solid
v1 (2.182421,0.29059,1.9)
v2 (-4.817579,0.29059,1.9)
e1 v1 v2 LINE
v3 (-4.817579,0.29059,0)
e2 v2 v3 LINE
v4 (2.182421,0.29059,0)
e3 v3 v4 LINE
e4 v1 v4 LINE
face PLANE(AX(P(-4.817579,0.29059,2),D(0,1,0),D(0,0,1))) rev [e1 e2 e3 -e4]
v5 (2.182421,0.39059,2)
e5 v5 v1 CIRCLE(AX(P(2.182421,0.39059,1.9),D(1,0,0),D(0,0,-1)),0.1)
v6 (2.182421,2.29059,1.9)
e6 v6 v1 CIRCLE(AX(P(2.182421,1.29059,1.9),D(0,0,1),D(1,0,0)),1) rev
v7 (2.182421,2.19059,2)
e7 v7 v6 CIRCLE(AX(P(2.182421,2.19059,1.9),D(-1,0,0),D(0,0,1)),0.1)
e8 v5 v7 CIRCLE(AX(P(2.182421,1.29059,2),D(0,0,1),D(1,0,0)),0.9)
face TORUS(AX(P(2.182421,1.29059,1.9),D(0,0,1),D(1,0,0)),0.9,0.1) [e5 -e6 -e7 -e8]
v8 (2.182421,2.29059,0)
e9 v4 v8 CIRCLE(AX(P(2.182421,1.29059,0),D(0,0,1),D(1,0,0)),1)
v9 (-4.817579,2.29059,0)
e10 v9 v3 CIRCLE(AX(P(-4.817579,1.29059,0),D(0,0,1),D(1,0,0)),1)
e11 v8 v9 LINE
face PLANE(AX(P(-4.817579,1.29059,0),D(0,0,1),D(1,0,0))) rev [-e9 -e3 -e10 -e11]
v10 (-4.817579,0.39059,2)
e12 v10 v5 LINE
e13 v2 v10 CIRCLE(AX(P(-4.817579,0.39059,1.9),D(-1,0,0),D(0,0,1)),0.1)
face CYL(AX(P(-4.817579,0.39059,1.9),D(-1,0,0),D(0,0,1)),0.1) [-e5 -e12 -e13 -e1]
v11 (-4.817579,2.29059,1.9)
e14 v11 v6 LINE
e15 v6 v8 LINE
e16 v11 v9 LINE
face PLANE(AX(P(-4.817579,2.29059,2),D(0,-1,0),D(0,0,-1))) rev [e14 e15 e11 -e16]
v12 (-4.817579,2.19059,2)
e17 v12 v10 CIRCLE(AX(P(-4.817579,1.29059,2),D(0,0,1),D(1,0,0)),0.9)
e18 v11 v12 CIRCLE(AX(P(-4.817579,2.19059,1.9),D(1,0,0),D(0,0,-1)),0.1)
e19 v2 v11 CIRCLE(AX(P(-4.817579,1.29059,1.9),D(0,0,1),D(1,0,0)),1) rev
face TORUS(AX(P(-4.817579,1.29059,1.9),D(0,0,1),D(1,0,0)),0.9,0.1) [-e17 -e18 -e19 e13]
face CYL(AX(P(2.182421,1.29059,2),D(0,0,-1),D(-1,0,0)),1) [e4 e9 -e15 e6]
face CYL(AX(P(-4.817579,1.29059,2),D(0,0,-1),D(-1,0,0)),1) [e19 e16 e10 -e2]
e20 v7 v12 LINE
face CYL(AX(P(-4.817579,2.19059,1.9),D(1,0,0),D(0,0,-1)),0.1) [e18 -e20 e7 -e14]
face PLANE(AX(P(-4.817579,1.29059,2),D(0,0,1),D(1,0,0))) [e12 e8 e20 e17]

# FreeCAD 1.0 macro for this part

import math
import FreeCAD as App
import Part
import Sketcher
from FreeCAD import Vector


def edges_at(feature, points):
    """Names of the edges that pass closest to the given points."""
    edges = feature.Shape.Edges
    near = lambda p: min(range(len(edges)), key=lambda i: edges[i].distToShape(Part.Vertex(*p))[0])
    return sorted({f"Edge{near(p) + 1}" for p in points})

doc = App.newDocument("Part")
body = doc.addObject("PartDesign::Body", "Body")

# Sketch on XY plane
sketch1 = doc.addObject("Sketcher::SketchObject", "Sketch")
body.addObject(sketch1)
sketch1.AttachmentSupport = (doc.XY_Plane, [""])
sketch1.MapMode = "FlatFace"
sketch1.addGeometry([
    Part.LineSegment(Vector(2.182421, 2.29059, 0), Vector(-4.817579, 2.29059, 0)),
    Part.ArcOfCircle(Part.Circle(Vector(-4.817579, 1.29059, 0), Vector(0, 0, 1), 1), math.radians(90), math.radians(270)),
    Part.LineSegment(Vector(-4.817579, 0.29059, 0), Vector(2.182421, 0.29059, 0)),
    Part.ArcOfCircle(Part.Circle(Vector(2.182421, 1.29059, 0), Vector(0, 0, 1), 1), math.radians(-90), math.radians(90)),
], False)
sketch1.addConstraint([
    Sketcher.Constraint("Tangent", 0, 2, 1, 1),
    Sketcher.Constraint("Tangent", 1, 2, 2, 1),
    Sketcher.Constraint("Tangent", 2, 2, 3, 1),
    Sketcher.Constraint("Tangent", 3, 2, 0, 1),
    Sketcher.Constraint("Horizontal", 0),
    Sketcher.Constraint("Horizontal", 2),
    Sketcher.Constraint("Radius", 1, 1.0),
    Sketcher.Constraint("DistanceX", 0, 2, 0, 1, 7.0),
    Sketcher.Constraint("DistanceX", 1, 3, -1, 1, 4.817579),
    Sketcher.Constraint("DistanceY", -1, 1, 1, 3, 1.29059),
])
pad1 = doc.addObject("PartDesign::Pad", "Pad")
body.addObject(pad1)
pad1.Profile = sketch1
pad1.Length = 2
doc.recompute()

fillet = doc.addObject("PartDesign::Fillet", "Fillet")
body.addObject(fillet)
fillet.Base = (pad1, edges_at(pad1, [
    (3.182, 1.291, 2),
    (-1.318, 2.291, 2),
    (-5.818, 1.291, 2),
    (-1.318, 0.291, 2),
]))
fillet.Radius = 0.1

doc.recompute()
